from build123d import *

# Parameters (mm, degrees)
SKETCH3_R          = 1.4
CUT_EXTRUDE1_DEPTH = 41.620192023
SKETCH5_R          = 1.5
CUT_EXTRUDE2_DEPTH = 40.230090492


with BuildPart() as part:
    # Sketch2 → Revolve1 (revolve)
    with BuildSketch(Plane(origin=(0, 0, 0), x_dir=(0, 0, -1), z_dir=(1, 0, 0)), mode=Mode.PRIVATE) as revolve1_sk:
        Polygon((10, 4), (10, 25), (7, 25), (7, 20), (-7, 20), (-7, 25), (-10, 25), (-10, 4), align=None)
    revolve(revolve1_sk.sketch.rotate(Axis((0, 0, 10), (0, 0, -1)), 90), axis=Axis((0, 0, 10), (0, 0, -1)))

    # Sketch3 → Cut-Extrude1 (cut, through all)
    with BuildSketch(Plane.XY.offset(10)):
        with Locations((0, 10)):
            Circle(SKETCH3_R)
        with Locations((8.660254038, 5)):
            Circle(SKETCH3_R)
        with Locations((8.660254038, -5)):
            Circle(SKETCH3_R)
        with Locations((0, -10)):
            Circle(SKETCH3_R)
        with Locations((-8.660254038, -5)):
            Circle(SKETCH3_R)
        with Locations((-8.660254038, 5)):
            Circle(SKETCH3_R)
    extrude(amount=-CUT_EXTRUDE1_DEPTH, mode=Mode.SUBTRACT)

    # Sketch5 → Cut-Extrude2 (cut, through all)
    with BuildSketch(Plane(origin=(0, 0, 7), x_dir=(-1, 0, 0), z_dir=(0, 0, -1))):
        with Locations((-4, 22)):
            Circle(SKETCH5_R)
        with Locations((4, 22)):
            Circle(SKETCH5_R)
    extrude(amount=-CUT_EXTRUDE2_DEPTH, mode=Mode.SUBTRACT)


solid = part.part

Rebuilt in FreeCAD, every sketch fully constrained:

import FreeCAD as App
import Part
import Sketcher
from FreeCAD import Vector


def add_polygon(sketch, points):
    """Adds a closed chain of lines whose ends are joined by coincident constraints."""
    first, n = sketch.GeometryCount, len(points)
    for a, b in zip(points, points[1:] + points[:1]):
        sketch.addGeometry(Part.LineSegment(App.Vector(*a, 0), App.Vector(*b, 0)), False)
    for i in range(n):
        sketch.addConstraint(Sketcher.Constraint("Coincident", first + i, 2, first + (i + 1) % n, 1))

doc = App.newDocument("Part")
body = doc.addObject("PartDesign::Body", "Body")

sketch1 = body.newObject("Sketcher::SketchObject", "Sketch")
sketch1.AttachmentSupport = (doc.getObject("YZ_Plane"), [""])
sketch1.MapMode = "FlatFace"
add_polygon(sketch1, [(4, -10), (25, -10), (25, -7), (20, -7), (20, 7), (25, 7), (25, 10), (4, 10)])
sketch1.addConstraint([
    Sketcher.Constraint("Horizontal", 0),
    Sketcher.Constraint("Vertical", 1),
    Sketcher.Constraint("Horizontal", 2),
    Sketcher.Constraint("Vertical", 3),
    Sketcher.Constraint("Horizontal", 4),
    Sketcher.Constraint("Vertical", 5),
    Sketcher.Constraint("Horizontal", 6),
    Sketcher.Constraint("Vertical", 7),
    Sketcher.Constraint("Symmetric", 1, 2, 4, 2, -1),
    Sketcher.Constraint("Equal", 1, 5),
    Sketcher.Constraint("DistanceX", 0, 1, 0, 2, 21.0),
    Sketcher.Constraint("DistanceX", 2, 2, 2, 1, 5.0),
    Sketcher.Constraint("DistanceY", 1, 1, 1, 2, 3.0),
    Sketcher.Constraint("DistanceY", 3, 1, 3, 2, 14.0),
    Sketcher.Constraint("DistanceX", -1, 1, 0, 2, 25.0),
])
revolution = body.newObject("PartDesign::Revolution", "Revolution")
revolution.Profile = sketch1
revolution.ReferenceAxis = (sketch1, ["V_Axis"])
revolution.Angle = 360

sketch2 = body.newObject("Sketcher::SketchObject", "Sketch001")
sketch2.AttachmentSupport = (doc.getObject("XY_Plane"), [""])
sketch2.MapMode = "FlatFace"
sketch2.AttachmentOffset = App.Placement(Vector(0, 0, 10), App.Rotation())
sketch2.addGeometry([
    Part.Circle(Vector(0, 10, 0), Vector(0, 0, 1), 1.4),
    Part.Circle(Vector(8.7, 5, 0), Vector(0, 0, 1), 1.4),
    Part.Circle(Vector(8.7, -5, 0), Vector(0, 0, 1), 1.4),
    Part.Circle(Vector(0, -10, 0), Vector(0, 0, 1), 1.4),
    Part.Circle(Vector(-8.7, -5, 0), Vector(0, 0, 1), 1.4),
    Part.Circle(Vector(-8.7, 5, 0), Vector(0, 0, 1), 1.4),
], False)
sketch2.addConstraint([
    Sketcher.Constraint("Equal", 0, 1),
    Sketcher.Constraint("Equal", 1, 2),
    Sketcher.Constraint("Equal", 2, 3),
    Sketcher.Constraint("Equal", 3, 4),
    Sketcher.Constraint("Equal", 4, 5),
    Sketcher.Constraint("Symmetric", 0, 3, 3, 3, -1, 1),
    Sketcher.Constraint("Symmetric", 1, 3, 4, 3, -1, 1),
    Sketcher.Constraint("Symmetric", 2, 3, 5, 3, -1, 1),
    Sketcher.Constraint("Symmetric", 2, 3, 4, 3, -2),
    Sketcher.Constraint("PointOnObject", 0, 3, -2),
    Sketcher.Constraint("Diameter", 0, 2.8),
    Sketcher.Constraint("DistanceY", -1, 1, 0, 3, 10.0),
    Sketcher.Constraint("DistanceY", -1, 1, 1, 3, 5.0),
    Sketcher.Constraint("DistanceX", 4, 3, 2, 3, 17.320508),
])
pocket1 = body.newObject("PartDesign::Pocket", "Pocket")
pocket1.Profile = sketch2
pocket1.Type = "ThroughAll"

sketch3 = body.newObject("Sketcher::SketchObject", "Sketch002")
sketch3.AttachmentSupport = (doc.getObject("XY_Plane"), [""])
sketch3.MapMode = "FlatFace"
sketch3.AttachmentOffset = App.Placement(Vector(0, 0, 7), App.Rotation())
sketch3.addGeometry([
    Part.Circle(Vector(4, 22, 0), Vector(0, 0, 1), 1.5),
    Part.Circle(Vector(-4, 22, 0), Vector(0, 0, 1), 1.5),
], False)
sketch3.addConstraint([
    Sketcher.Constraint("Equal", 0, 1),
    Sketcher.Constraint("Symmetric", 0, 3, 1, 3, -2),
    Sketcher.Constraint("Diameter", 0, 3.0),
    Sketcher.Constraint("DistanceX", -1, 1, 0, 3, 4.0),
    Sketcher.Constraint("DistanceY", -1, 1, 0, 3, 22.0),
])
pocket2 = body.newObject("PartDesign::Pocket", "Pocket001")
pocket2.Profile = sketch3
pocket2.Type = "ThroughAll"
pocket2.Reversed = True

doc.recompute()
